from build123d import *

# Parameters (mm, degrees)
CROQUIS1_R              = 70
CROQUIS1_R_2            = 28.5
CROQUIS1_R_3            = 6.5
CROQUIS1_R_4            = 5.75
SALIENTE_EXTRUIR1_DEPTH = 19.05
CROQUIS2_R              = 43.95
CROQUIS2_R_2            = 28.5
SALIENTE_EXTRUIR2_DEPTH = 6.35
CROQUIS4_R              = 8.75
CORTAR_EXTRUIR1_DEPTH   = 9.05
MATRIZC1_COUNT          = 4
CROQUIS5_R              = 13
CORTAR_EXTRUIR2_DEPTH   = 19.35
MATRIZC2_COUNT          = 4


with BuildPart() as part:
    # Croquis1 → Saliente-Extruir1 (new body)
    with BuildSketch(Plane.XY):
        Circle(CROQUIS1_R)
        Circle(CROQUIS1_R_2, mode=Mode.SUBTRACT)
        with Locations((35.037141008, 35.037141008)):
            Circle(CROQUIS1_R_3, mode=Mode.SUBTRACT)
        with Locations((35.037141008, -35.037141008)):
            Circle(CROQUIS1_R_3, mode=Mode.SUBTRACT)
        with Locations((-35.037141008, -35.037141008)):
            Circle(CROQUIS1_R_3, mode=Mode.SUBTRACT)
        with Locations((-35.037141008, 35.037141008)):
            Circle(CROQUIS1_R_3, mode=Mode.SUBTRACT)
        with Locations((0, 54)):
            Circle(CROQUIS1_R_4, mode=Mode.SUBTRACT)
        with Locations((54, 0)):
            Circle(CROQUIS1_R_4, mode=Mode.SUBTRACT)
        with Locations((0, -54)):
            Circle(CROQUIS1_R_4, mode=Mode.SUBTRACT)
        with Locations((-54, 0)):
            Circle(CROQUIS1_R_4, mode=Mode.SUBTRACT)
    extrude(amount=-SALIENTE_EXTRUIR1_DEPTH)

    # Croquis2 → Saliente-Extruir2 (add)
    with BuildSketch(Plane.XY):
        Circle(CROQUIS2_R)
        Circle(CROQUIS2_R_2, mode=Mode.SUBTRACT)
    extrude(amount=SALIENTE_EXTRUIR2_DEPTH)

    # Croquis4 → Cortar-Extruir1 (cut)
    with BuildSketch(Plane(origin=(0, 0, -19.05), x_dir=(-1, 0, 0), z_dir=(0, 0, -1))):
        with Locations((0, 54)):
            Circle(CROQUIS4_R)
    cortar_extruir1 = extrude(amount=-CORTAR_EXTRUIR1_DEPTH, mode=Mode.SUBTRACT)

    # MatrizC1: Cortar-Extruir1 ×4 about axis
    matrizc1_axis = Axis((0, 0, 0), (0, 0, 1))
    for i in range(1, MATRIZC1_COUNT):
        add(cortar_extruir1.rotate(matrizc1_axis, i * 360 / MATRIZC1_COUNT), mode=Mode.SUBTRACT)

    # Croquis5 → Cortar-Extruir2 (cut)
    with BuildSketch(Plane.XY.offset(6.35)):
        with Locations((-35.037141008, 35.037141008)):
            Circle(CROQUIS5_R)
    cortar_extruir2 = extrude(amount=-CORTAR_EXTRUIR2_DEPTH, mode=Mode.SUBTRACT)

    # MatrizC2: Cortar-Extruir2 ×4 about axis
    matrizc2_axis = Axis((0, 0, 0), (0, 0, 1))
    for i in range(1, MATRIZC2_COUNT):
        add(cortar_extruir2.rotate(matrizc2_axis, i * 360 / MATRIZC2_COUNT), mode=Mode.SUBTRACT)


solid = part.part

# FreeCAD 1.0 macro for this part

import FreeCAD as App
import Part
import Sketcher

V = App.Vector
Q = App.Units.Quantity

doc = App.newDocument("Part")
params = doc.addObject("Spreadsheet::Sheet", "Params")
for row, (alias, value) in enumerate([
    ("sketch1_diameter", "140 mm"),
    ("sketch1_diameter2", "13 mm"),
    ("sketch1_diameter3", "57 mm"),
    ("sketch1_diameter4", "11.5 mm"),
    ("pad1_length", "19.05 mm"),
    ("sketch2_diameter", "57 mm"),
    ("sketch2_diameter2", "87.9 mm"),
    ("pad2_length", "6.35 mm"),
    ("sketch3_diameter", "17.5 mm"),
    ("pocket1_length", "9.05 mm"),
    ("sketch4_diameter", "26 mm"),
    ("pocket2_length", "19.35 mm"),
], start=1):
    params.set(f"A{row}", alias)
    params.set(f"B{row}", "=" + value)
    params.setAlias(f"B{row}", alias)

body = doc.addObject("PartDesign::Body", "Body")

# Sketch on XY plane
sketch1 = body.newObject("Sketcher::SketchObject", "Sketch")
sketch1.AttachmentSupport = (doc.getObject("XY_Plane"), [""])
sketch1.MapMode = "FlatFace"
sketch1.addGeometry([
    Part.Circle(V(0, 0, 0), V(0, 0, 1), 70),  # 0
    Part.Circle(V(-35.037141, -35.037141, 0), V(0, 0, 1), 6.5),  # 1
    Part.Circle(V(0, -54, 0), V(0, 0, 1), 5.75),  # 2
    Part.Circle(V(-54, 0, 0), V(0, 0, 1), 5.75),  # 3
    Part.Circle(V(0, 0, 0), V(0, 0, 1), 28.5),  # 4
    Part.Circle(V(35.037141, -35.037141, 0), V(0, 0, 1), 6.5),  # 5
    Part.Circle(V(54, 0, 0), V(0, 0, 1), 5.75),  # 6
    Part.Circle(V(-35.037141, 35.037141, 0), V(0, 0, 1), 6.5),  # 7
    Part.Circle(V(0, 54, 0), V(0, 0, 1), 5.75),  # 8
    Part.Circle(V(35.037141, 35.037141, 0), V(0, 0, 1), 6.5),  # 9
], False)
sketch1.addConstraint([
    Sketcher.Constraint("Coincident", 0, 3, -1, 1),
    Sketcher.Constraint("Coincident", 4, 3, -1, 1),
    Sketcher.Constraint("Equal", 2, 3),
    Sketcher.Constraint("Equal", 1, 5),
    Sketcher.Constraint("Equal", 3, 6),
    Sketcher.Constraint("Equal", 5, 7),
    Sketcher.Constraint("Equal", 6, 8),
    Sketcher.Constraint("Equal", 7, 9),
    Sketcher.Constraint("Symmetric", 3, 3, 6, 3, -1, 1),
    Sketcher.Constraint("Symmetric", 5, 3, 7, 3, -1, 1),
    Sketcher.Constraint("Symmetric", 2, 3, 8, 3, -1, 1),
    Sketcher.Constraint("Symmetric", 1, 3, 9, 3, -1, 1),
    Sketcher.Constraint("Symmetric", 1, 3, 5, 3, -2),
    Sketcher.Constraint("PointOnObject", 2, 3, -2),
    Sketcher.Constraint("PointOnObject", 3, 3, -1),
    Sketcher.Constraint("Diameter", 0, Q("140 mm")),
    Sketcher.Constraint("Diameter", 1, Q("13 mm")),
    Sketcher.Constraint("Diameter", 4, Q("57 mm")),
    Sketcher.Constraint("Diameter", 2, Q("11.5 mm")),
    Sketcher.Constraint("DistanceY", 2, 3, -1, 1, Q("54 mm")),
    Sketcher.Constraint("DistanceX", 3, 3, -1, 1, Q("54 mm")),
    Sketcher.Constraint("DistanceX", 1, 3, -1, 1, Q("35.037141 mm")),
    Sketcher.Constraint("DistanceY", 1, 3, -1, 1, Q("35.037141 mm")),
])
sketch1.setExpression("Constraints[15]", "Params.sketch1_diameter")
sketch1.setExpression("Constraints[16]", "Params.sketch1_diameter2")
sketch1.setExpression("Constraints[17]", "Params.sketch1_diameter3")
sketch1.setExpression("Constraints[18]", "Params.sketch1_diameter4")
pad1 = body.newObject("PartDesign::Pad", "Pad")
pad1.Profile = sketch1
pad1.setExpression("Length", "Params.pad1_length")
pad1.Reversed = True

# Sketch on XY plane
sketch2 = body.newObject("Sketcher::SketchObject", "Sketch001")
sketch2.AttachmentSupport = (doc.getObject("XY_Plane"), [""])
sketch2.MapMode = "FlatFace"
sketch2.addGeometry([
    Part.Circle(V(0, 0, 0), V(0, 0, 1), 43.95),
    Part.Circle(V(0, 0, 0), V(0, 0, 1), 28.5),
], False)
sketch2.addConstraint([
    Sketcher.Constraint("Coincident", 0, 3, -1, 1),
    Sketcher.Constraint("Coincident", 1, 3, -1, 1),
    Sketcher.Constraint("Diameter", 1, Q("57 mm")),
    Sketcher.Constraint("Diameter", 0, Q("87.9 mm")),
])
sketch2.setExpression("Constraints[2]", "Params.sketch2_diameter")
sketch2.setExpression("Constraints[3]", "Params.sketch2_diameter2")
pad2 = body.newObject("PartDesign::Pad", "Pad001")
pad2.Profile = sketch2
pad2.setExpression("Length", "Params.pad2_length")

# Sketch on XY plane
sketch3 = body.newObject("Sketcher::SketchObject", "Sketch002")
sketch3.AttachmentSupport = (doc.getObject("XY_Plane"), [""])
sketch3.MapMode = "FlatFace"
sketch3.AttachmentOffset = App.Placement(V(0, 0, -19.05), App.Rotation())
sketch3.addGeometry(Part.Circle(V(0, 54, 0), V(0, 0, 1), 8.75), False)
sketch3.addConstraint([
    Sketcher.Constraint("PointOnObject", 0, 3, -2),
    Sketcher.Constraint("Diameter", 0, Q("17.5 mm")),
    Sketcher.Constraint("DistanceY", -1, 1, 0, 3, Q("54 mm")),
])
sketch3.setExpression("Constraints[1]", "Params.sketch3_diameter")
pocket1 = body.newObject("PartDesign::Pocket", "Pocket")
pocket1.Profile = sketch3
pocket1.setExpression("Length", "Params.pocket1_length")
pocket1.Reversed = True
doc.recompute()

polarpattern = body.newObject("PartDesign::PolarPattern", "PolarPattern")
polarpattern.Originals = [pocket1]
polarpattern.Axis = (doc.getObject("Z_Axis"), [""])
polarpattern.Angle = 360
polarpattern.Occurrences = 4
body.Tip = polarpattern

# Sketch on XY plane
sketch4 = body.newObject("Sketcher::SketchObject", "Sketch003")
sketch4.AttachmentSupport = (doc.getObject("XY_Plane"), [""])
sketch4.MapMode = "FlatFace"
sketch4.AttachmentOffset = App.Placement(V(0, 0, 6.35), App.Rotation())
sketch4.addGeometry(Part.Circle(V(-35.037141, 35.037141, 0), V(0, 0, 1), 13), False)
sketch4.addConstraint([
    Sketcher.Constraint("Diameter", 0, Q("26 mm")),
    Sketcher.Constraint("DistanceX", 0, 3, -1, 1, Q("35.037141 mm")),
    Sketcher.Constraint("DistanceY", -1, 1, 0, 3, Q("35.037141 mm")),
])
sketch4.setExpression("Constraints[0]", "Params.sketch4_diameter")
pocket2 = body.newObject("PartDesign::Pocket", "Pocket001")
pocket2.Profile = sketch4
pocket2.setExpression("Length", "Params.pocket2_length")
doc.recompute()

polarpattern2 = body.newObject("PartDesign::PolarPattern", "PolarPattern001")
polarpattern2.Originals = [pocket2]
polarpattern2.Axis = (doc.getObject("Z_Axis"), [""])
polarpattern2.Angle = 360
polarpattern2.Occurrences = 4
body.Tip = polarpattern2

doc.recompute()
